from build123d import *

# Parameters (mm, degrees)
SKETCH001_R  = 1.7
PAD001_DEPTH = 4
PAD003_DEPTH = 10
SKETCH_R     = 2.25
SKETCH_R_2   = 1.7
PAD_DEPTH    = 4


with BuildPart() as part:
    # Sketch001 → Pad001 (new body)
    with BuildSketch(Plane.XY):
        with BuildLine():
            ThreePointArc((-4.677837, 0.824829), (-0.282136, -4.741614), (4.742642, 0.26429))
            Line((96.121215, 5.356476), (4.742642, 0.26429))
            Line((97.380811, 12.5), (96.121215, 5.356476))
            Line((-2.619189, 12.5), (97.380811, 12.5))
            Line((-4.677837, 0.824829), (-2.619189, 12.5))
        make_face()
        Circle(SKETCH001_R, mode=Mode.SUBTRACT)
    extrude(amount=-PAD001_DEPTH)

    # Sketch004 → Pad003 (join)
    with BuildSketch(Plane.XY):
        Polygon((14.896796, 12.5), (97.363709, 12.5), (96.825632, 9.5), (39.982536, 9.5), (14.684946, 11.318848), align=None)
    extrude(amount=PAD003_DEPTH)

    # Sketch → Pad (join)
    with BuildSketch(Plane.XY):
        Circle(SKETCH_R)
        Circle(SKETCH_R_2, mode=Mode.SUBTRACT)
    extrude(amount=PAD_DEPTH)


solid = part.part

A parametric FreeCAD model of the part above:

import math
import FreeCAD as App
import Part
import Sketcher
Q = App.Units.Quantity


def add_polygon(sketch, points):
    """Adds a closed chain of lines whose ends are joined by coincident constraints."""
    first, n = sketch.GeometryCount, len(points)
    for a, b in zip(points, points[1:] + points[:1]):
        sketch.addGeometry(Part.LineSegment(App.Vector(*a, 0), App.Vector(*b, 0)), False)
    for i in range(n):
        sketch.addConstraint(Sketcher.Constraint("Coincident", first + i, 2, first + (i + 1) % n, 1))

doc = App.newDocument("Part")
body = doc.addObject("PartDesign::Body", "Body")

sketch1 = body.newObject("Sketcher::SketchObject", "Sketch")
sketch1.AttachmentSupport = (doc.getObject("XY_Plane"), [""])
sketch1.MapMode = "FlatFace"
sketch1.addGeometry([
    Part.ArcOfCircle(Part.Circle(App.Vector(0, 0, 0), App.Vector(0, 0, 1), 4.8), math.radians(170), math.radians(363)),
    Part.LineSegment(App.Vector(4.7, 0.3, 0), App.Vector(96.1, 5.4, 0)),
    Part.LineSegment(App.Vector(96.1, 5.4, 0), App.Vector(97.4, 12.5, 0)),
    Part.LineSegment(App.Vector(97.4, 12.5, 0), App.Vector(-2.6, 12.5, 0)),
    Part.LineSegment(App.Vector(-2.6, 12.5, 0), App.Vector(-4.7, 0.8, 0)),
    Part.Circle(App.Vector(0, 0, 0), App.Vector(0, 0, 1), 1.7),
], False)
sketch1.addConstraint([
    Sketcher.Constraint("Coincident", 0, 2, 1, 1),
    Sketcher.Constraint("Coincident", 1, 2, 2, 1),
    Sketcher.Constraint("Coincident", 2, 2, 3, 1),
    Sketcher.Constraint("Coincident", 3, 2, 4, 1),
    Sketcher.Constraint("Tangent", 4, 2, 0, 1),
    Sketcher.Constraint("Horizontal", 3),
    Sketcher.Constraint("Coincident", 0, 3, -1, 1),
    Sketcher.Constraint("Coincident", 5, 3, -1, 1),
    Sketcher.Constraint("Parallel", 2, 4),
    Sketcher.Constraint("Diameter", 5, 3.4),
    Sketcher.Constraint("DistanceX", 3, 2, 3, 1, 100.0),
    Sketcher.Constraint("Angle", 2, Q("80 deg")),
    Sketcher.Constraint("Radius", 0, 4.75),
    Sketcher.Constraint("DistanceY", -1, 1, 2, 2, 12.5),
    Sketcher.Constraint("DistanceX", -1, 1, 0, 2, 4.742642),
    Sketcher.Constraint("Distance", 1, 91.520347),
])
pad1 = body.newObject("PartDesign::Pad", "Pad")
pad1.Profile = sketch1
pad1.Length = 4
pad1.Reversed = True

sketch2 = body.newObject("Sketcher::SketchObject", "Sketch001")
sketch2.AttachmentSupport = (doc.getObject("XY_Plane"), [""])
sketch2.MapMode = "FlatFace"
add_polygon(sketch2, [(97.4, 12.5), (14.9, 12.5), (14.7, 11.3), (40, 9.5), (96.8, 9.5)])
sketch2.addConstraint([
    Sketcher.Constraint("Horizontal", 0),
    Sketcher.Constraint("Horizontal", 3),
    Sketcher.Constraint("Parallel", 1, 4),
    Sketcher.Constraint("DistanceY", 2, 2, 0, 2, 3.0),
    Sketcher.Constraint("Distance", 1, 1.2),
    Sketcher.Constraint("DistanceY", -1, 1, 0, 2, 12.5),
    Sketcher.Constraint("Distance", 2, 25.362892),
    Sketcher.Constraint("DistanceX", 0, 2, 0, 1, 82.466913),
    Sketcher.Constraint("DistanceX", 3, 1, 3, 2, 56.843096),
    Sketcher.Constraint("DistanceX", -1, 1, 3, 2, 96.825632),
])
pad2 = body.newObject("PartDesign::Pad", "Pad001")
pad2.Profile = sketch2
pad2.Length = 10

sketch3 = body.newObject("Sketcher::SketchObject", "Sketch002")
sketch3.AttachmentSupport = (doc.getObject("XY_Plane"), [""])
sketch3.MapMode = "FlatFace"
sketch3.addGeometry([
    Part.Circle(App.Vector(0, 0, 0), App.Vector(0, 0, 1), 2.2),
    Part.Circle(App.Vector(0, 0, 0), App.Vector(0, 0, 1), 1.7),
], False)
sketch3.addConstraint([
    Sketcher.Constraint("Coincident", 0, 3, -1, 1),
    Sketcher.Constraint("Coincident", 1, 3, -1, 1),
    Sketcher.Constraint("Diameter", 0, 4.5),
    Sketcher.Constraint("Diameter", 1, 3.4),
])
pad3 = body.newObject("PartDesign::Pad", "Pad002")
pad3.Profile = sketch3
pad3.Length = 4

doc.recompute()
